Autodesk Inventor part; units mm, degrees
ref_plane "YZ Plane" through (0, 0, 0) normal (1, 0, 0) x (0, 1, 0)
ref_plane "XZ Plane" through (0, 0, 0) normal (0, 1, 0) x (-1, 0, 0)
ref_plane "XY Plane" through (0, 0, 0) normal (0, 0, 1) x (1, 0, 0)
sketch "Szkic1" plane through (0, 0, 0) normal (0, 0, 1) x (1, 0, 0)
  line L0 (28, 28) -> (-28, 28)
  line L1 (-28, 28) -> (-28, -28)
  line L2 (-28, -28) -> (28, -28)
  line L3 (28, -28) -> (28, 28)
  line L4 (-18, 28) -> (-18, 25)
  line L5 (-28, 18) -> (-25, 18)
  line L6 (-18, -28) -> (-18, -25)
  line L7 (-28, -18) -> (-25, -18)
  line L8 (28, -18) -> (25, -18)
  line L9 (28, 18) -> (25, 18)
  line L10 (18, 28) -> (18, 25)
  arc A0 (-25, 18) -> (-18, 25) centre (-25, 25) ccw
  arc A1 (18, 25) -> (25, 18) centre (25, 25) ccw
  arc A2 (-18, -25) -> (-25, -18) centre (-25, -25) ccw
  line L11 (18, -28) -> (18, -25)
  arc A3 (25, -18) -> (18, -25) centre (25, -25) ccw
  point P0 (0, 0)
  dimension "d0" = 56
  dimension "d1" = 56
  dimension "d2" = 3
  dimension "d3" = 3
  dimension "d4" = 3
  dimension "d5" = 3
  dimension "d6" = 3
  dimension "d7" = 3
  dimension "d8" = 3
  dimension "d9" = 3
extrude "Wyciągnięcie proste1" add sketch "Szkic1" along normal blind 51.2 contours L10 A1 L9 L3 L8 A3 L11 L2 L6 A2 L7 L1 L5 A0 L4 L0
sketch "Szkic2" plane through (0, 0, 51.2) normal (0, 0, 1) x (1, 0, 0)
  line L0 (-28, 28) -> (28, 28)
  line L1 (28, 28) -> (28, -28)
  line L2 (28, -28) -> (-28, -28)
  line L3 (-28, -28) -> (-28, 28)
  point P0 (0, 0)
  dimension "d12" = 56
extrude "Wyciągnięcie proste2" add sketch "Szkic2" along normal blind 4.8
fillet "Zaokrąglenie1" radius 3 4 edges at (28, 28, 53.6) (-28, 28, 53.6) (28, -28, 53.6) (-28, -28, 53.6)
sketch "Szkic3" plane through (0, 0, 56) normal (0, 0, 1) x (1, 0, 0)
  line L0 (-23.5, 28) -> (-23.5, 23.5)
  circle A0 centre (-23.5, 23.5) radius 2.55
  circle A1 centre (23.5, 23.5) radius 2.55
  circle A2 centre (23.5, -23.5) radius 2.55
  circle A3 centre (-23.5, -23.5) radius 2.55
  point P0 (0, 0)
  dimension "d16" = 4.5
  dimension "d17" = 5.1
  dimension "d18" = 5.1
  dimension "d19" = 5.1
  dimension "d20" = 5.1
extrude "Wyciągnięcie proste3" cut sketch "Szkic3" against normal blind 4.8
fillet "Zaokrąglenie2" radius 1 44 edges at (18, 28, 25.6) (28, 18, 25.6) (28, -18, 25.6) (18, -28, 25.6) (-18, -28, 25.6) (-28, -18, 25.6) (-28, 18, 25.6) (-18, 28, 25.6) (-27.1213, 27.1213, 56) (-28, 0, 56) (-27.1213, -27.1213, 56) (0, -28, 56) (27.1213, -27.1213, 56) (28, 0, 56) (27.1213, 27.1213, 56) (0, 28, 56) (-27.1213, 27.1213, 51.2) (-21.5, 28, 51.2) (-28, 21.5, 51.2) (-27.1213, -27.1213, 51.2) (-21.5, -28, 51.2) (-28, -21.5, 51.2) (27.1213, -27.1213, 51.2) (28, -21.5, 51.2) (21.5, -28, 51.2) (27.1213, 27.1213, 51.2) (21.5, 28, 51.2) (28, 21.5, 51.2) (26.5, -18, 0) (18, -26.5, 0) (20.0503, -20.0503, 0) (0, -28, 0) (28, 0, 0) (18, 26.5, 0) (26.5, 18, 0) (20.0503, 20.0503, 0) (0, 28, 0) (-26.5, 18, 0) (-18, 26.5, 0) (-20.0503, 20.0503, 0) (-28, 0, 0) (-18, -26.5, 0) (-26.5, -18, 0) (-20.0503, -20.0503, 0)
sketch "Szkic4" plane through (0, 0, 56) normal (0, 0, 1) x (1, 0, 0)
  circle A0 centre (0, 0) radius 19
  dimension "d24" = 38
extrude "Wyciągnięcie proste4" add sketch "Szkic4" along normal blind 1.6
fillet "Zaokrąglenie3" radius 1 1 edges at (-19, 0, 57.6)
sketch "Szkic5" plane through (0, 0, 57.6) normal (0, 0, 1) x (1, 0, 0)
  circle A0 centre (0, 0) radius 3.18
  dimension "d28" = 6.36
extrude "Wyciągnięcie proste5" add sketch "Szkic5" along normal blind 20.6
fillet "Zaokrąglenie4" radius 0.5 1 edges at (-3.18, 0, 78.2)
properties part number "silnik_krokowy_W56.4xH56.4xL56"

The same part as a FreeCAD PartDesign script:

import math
import FreeCAD as App
import Part
import Sketcher

V = App.Vector
Q = App.Units.Quantity


def edges_at(feature, points):
    """Names of the edges that pass closest to the given points."""
    edges = feature.Shape.Edges
    near = lambda p: min(range(len(edges)), key=lambda i: edges[i].distToShape(Part.Vertex(*p))[0])
    return sorted({f"Edge{near(p) + 1}" for p in points})


def add_polygon(sketch, points):
    """Adds a closed chain of lines whose ends are joined by coincident constraints."""
    first, n = sketch.GeometryCount, len(points)
    for a, b in zip(points, points[1:] + points[:1]):
        sketch.addGeometry(Part.LineSegment(App.Vector(*a, 0), App.Vector(*b, 0)), False)
    for i in range(n):
        sketch.addConstraint(Sketcher.Constraint("Coincident", first + i, 2, first + (i + 1) % n, 1))

doc = App.newDocument("Part")
body = doc.addObject("PartDesign::Body", "Body")

# Sketch on XY plane
sketch1 = body.newObject("Sketcher::SketchObject", "Sketch")
sketch1.AttachmentSupport = (doc.getObject("XY_Plane"), [""])
sketch1.MapMode = "FlatFace"
sketch1.addGeometry([
    Part.LineSegment(V(18, 25, 0), V(18, 28, 0)),  # 0
    Part.LineSegment(V(18, 28, 0), V(-18, 28, 0)),  # 1
    Part.LineSegment(V(-18, 28, 0), V(-18, 25, 0)),  # 2
    Part.ArcOfCircle(Part.Circle(V(-25, 25, 0), V(0, 0, 1), 7), math.radians(-90), math.radians(0)),  # 3
    Part.LineSegment(V(-25, 18, 0), V(-28, 18, 0)),  # 4
    Part.LineSegment(V(-28, 18, 0), V(-28, -18, 0)),  # 5
    Part.LineSegment(V(-28, -18, 0), V(-25, -18, 0)),  # 6
    Part.ArcOfCircle(Part.Circle(V(-25, -25, 0), V(0, 0, 1), 7), math.radians(0), math.radians(90)),  # 7
    Part.LineSegment(V(-18, -25, 0), V(-18, -28, 0)),  # 8
    Part.LineSegment(V(-18, -28, 0), V(18, -28, 0)),  # 9
    Part.LineSegment(V(18, -28, 0), V(18, -25, 0)),  # 10
    Part.ArcOfCircle(Part.Circle(V(25, -25, 0), V(0, 0, 1), 7), math.radians(90), math.radians(180)),  # 11
    Part.LineSegment(V(25, -18, 0), V(28, -18, 0)),  # 12
    Part.LineSegment(V(28, -18, 0), V(28, 18, 0)),  # 13
    Part.LineSegment(V(28, 18, 0), V(25, 18, 0)),  # 14
    Part.ArcOfCircle(Part.Circle(V(25, 25, 0), V(0, 0, 1), 7), math.radians(180), math.radians(270)),  # 15
], False)
sketch1.addConstraint([
    Sketcher.Constraint("Coincident", 0, 2, 1, 1),
    Sketcher.Constraint("Coincident", 1, 2, 2, 1),
    Sketcher.Constraint("Tangent", 2, 2, 3, 2),
    Sketcher.Constraint("Tangent", 3, 1, 4, 1),
    Sketcher.Constraint("Coincident", 4, 2, 5, 1),
    Sketcher.Constraint("Coincident", 5, 2, 6, 1),
    Sketcher.Constraint("Tangent", 6, 2, 7, 2),
    Sketcher.Constraint("Tangent", 7, 1, 8, 1),
    Sketcher.Constraint("Coincident", 8, 2, 9, 1),
    Sketcher.Constraint("Coincident", 9, 2, 10, 1),
    Sketcher.Constraint("Tangent", 10, 2, 11, 2),
    Sketcher.Constraint("Tangent", 11, 1, 12, 1),
    Sketcher.Constraint("Coincident", 12, 2, 13, 1),
    Sketcher.Constraint("Coincident", 13, 2, 14, 1),
    Sketcher.Constraint("Tangent", 14, 2, 15, 2),
    Sketcher.Constraint("Tangent", 15, 1, 0, 1),
    Sketcher.Constraint("Vertical", 0),
    Sketcher.Constraint("Horizontal", 1),
    Sketcher.Constraint("Vertical", 2),
    Sketcher.Constraint("Horizontal", 4),
    Sketcher.Constraint("Vertical", 5),
    Sketcher.Constraint("Horizontal", 6),
    Sketcher.Constraint("Vertical", 8),
    Sketcher.Constraint("Horizontal", 9),
    Sketcher.Constraint("Vertical", 10),
    Sketcher.Constraint("Horizontal", 12),
    Sketcher.Constraint("Vertical", 13),
    Sketcher.Constraint("Horizontal", 14),
    Sketcher.Constraint("Equal", 3, 7),
    Sketcher.Constraint("Equal", 7, 11),
    Sketcher.Constraint("Equal", 11, 15),
    Sketcher.Constraint("Symmetric", 3, 3, 11, 3, -1, 1),
    Sketcher.Constraint("Symmetric", 7, 3, 15, 3, -1, 1),
    Sketcher.Constraint("Symmetric", 7, 3, 11, 3, -2),
    Sketcher.Constraint("Equal", 6, 12),
    Sketcher.Constraint("Equal", 14, 0),
    Sketcher.Constraint("Equal", 9, 5),
    Sketcher.Constraint("Equal", 2, 8),
    Sketcher.Constraint("DistanceX", 4, 2, 4, 1, Q("3 mm")),
    Sketcher.Constraint("Radius", 3, Q("7 mm")),
    Sketcher.Constraint("DistanceX", 1, 2, 1, 1, Q("36 mm")),
])
pad1 = body.newObject("PartDesign::Pad", "Pad")
pad1.Profile = sketch1
pad1.Length = 51.2

# Sketch on XY plane
sketch2 = body.newObject("Sketcher::SketchObject", "Sketch001")
sketch2.AttachmentSupport = (doc.getObject("XY_Plane"), [""])
sketch2.MapMode = "FlatFace"
sketch2.AttachmentOffset = App.Placement(V(0, 0, 51.2), App.Rotation())
add_polygon(sketch2, [(28, 28), (-28, 28), (-28, -28), (28, -28)])  # lines 0-3
sketch2.addConstraint([
    Sketcher.Constraint("Horizontal", 0),
    Sketcher.Constraint("Vertical", 1),
    Sketcher.Constraint("Horizontal", 2),
    Sketcher.Constraint("Vertical", 3),
    Sketcher.Constraint("Symmetric", 0, 2, 2, 2, -1, 1),
    Sketcher.Constraint("Equal", 2, 1),
    Sketcher.Constraint("DistanceX", 0, 2, 0, 1, Q("56 mm")),
])
pad2 = body.newObject("PartDesign::Pad", "Pad001")
pad2.Profile = sketch2
pad2.Length = 4.8
doc.recompute()

fillet = body.newObject("PartDesign::Fillet", "Fillet")
fillet.Base = (pad2, edges_at(pad2, [
    (28, 28, 53.6),
    (-28, 28, 53.6),
    (28, -28, 53.6),
    (-28, -28, 53.6),
]))
fillet.Radius = 3

# Sketch on XY plane
sketch3 = body.newObject("Sketcher::SketchObject", "Sketch002")
sketch3.AttachmentSupport = (doc.getObject("XY_Plane"), [""])
sketch3.MapMode = "FlatFace"
sketch3.AttachmentOffset = App.Placement(V(0, 0, 56), App.Rotation())
sketch3.addGeometry([
    Part.Circle(V(-23.5, 23.5, 0), V(0, 0, 1), 2.5),
    Part.Circle(V(23.5, 23.5, 0), V(0, 0, 1), 2.5),
    Part.Circle(V(23.5, -23.5, 0), V(0, 0, 1), 2.5),
    Part.Circle(V(-23.5, -23.5, 0), V(0, 0, 1), 2.5),
], False)
sketch3.addConstraint([
    Sketcher.Constraint("Equal", 0, 1),
    Sketcher.Constraint("Equal", 1, 2),
    Sketcher.Constraint("Equal", 2, 3),
    Sketcher.Constraint("Symmetric", 0, 3, 2, 3, -1, 1),
    Sketcher.Constraint("Symmetric", 1, 3, 3, 3, -1, 1),
    Sketcher.Constraint("Symmetric", 0, 3, 1, 3, -2),
    Sketcher.Constraint("Diameter", 0, Q("5.1 mm")),
    Sketcher.Constraint("DistanceX", 0, 3, 1, 3, Q("47 mm")),
    Sketcher.Constraint("DistanceY", 2, 3, 1, 3, Q("47 mm")),
])
pocket1 = body.newObject("PartDesign::Pocket", "Pocket")
pocket1.Profile = sketch3
pocket1.Length = 4.8
doc.recompute()

fillet2 = body.newObject("PartDesign::Fillet", "Fillet001")
fillet2.Base = (pocket1, edges_at(pocket1, [
    (18, 28, 25.6),
    (28, 18, 25.6),
    (28, -18, 25.6),
    (18, -28, 25.6),
    (-18, -28, 25.6),
    (-28, -18, 25.6),
    (-28, 18, 25.6),
    (-18, 28, 25.6),
    (-27.121, 27.121, 56),
    (-28, 0, 56),
    (-27.121, -27.121, 56),
    (0, -28, 56),
    (27.121, -27.121, 56),
    (28, 0, 56),
    (27.121, 27.121, 56),
    (0, 28, 56),
    (-27.121, 27.121, 51.2),
    (-21.5, 28, 51.2),
    (-28, 21.5, 51.2),
    (-27.121, -27.121, 51.2),
    (-21.5, -28, 51.2),
    (-28, -21.5, 51.2),
    (27.121, -27.121, 51.2),
    (28, -21.5, 51.2),
    (21.5, -28, 51.2),
    (27.121, 27.121, 51.2),
    (21.5, 28, 51.2),
    (28, 21.5, 51.2),
    (26.5, -18, 0),
    (18, -26.5, 0),
    (20.05, -20.05, 0),
    (0, -28, 0),
    (28, 0, 0),
    (18, 26.5, 0),
    (26.5, 18, 0),
    (20.05, 20.05, 0),
    (0, 28, 0),
    (-26.5, 18, 0),
    (-18, 26.5, 0),
    (-20.05, 20.05, 0),
    (-28, 0, 0),
    (-18, -26.5, 0),
    (-26.5, -18, 0),
    (-20.05, -20.05, 0),
]))
fillet2.Radius = 1

# Sketch on XY plane
sketch4 = body.newObject("Sketcher::SketchObject", "Sketch003")
sketch4.AttachmentSupport = (doc.getObject("XY_Plane"), [""])
sketch4.MapMode = "FlatFace"
sketch4.AttachmentOffset = App.Placement(V(0, 0, 56), App.Rotation())
sketch4.addGeometry(Part.Circle(V(0, 0, 0), V(0, 0, 1), 19), False)
sketch4.addConstraint([
    Sketcher.Constraint("Coincident", 0, 3, -1, 1),
    Sketcher.Constraint("Diameter", 0, Q("38 mm")),
])
pad3 = body.newObject("PartDesign::Pad", "Pad002")
pad3.Profile = sketch4
pad3.Length = 1.6
doc.recompute()

fillet3 = body.newObject("PartDesign::Fillet", "Fillet002")
fillet3.Base = (pad3, edges_at(pad3, [(-19, 0, 57.6)]))
fillet3.Radius = 1

# Sketch on XY plane
sketch5 = body.newObject("Sketcher::SketchObject", "Sketch004")
sketch5.AttachmentSupport = (doc.getObject("XY_Plane"), [""])
sketch5.MapMode = "FlatFace"
sketch5.AttachmentOffset = App.Placement(V(0, 0, 57.6), App.Rotation())
sketch5.addGeometry(Part.Circle(V(0, 0, 0), V(0, 0, 1), 3.2), False)
sketch5.addConstraint([
    Sketcher.Constraint("Coincident", 0, 3, -1, 1),
    Sketcher.Constraint("Diameter", 0, Q("6.36 mm")),
])
pad4 = body.newObject("PartDesign::Pad", "Pad003")
pad4.Profile = sketch5
pad4.Length = 20.6
doc.recompute()

fillet4 = body.newObject("PartDesign::Fillet", "Fillet003")
fillet4.Base = (pad4, edges_at(pad4, [(-3.18, 0, 78.2)]))
fillet4.Radius = 0.5

doc.recompute()
